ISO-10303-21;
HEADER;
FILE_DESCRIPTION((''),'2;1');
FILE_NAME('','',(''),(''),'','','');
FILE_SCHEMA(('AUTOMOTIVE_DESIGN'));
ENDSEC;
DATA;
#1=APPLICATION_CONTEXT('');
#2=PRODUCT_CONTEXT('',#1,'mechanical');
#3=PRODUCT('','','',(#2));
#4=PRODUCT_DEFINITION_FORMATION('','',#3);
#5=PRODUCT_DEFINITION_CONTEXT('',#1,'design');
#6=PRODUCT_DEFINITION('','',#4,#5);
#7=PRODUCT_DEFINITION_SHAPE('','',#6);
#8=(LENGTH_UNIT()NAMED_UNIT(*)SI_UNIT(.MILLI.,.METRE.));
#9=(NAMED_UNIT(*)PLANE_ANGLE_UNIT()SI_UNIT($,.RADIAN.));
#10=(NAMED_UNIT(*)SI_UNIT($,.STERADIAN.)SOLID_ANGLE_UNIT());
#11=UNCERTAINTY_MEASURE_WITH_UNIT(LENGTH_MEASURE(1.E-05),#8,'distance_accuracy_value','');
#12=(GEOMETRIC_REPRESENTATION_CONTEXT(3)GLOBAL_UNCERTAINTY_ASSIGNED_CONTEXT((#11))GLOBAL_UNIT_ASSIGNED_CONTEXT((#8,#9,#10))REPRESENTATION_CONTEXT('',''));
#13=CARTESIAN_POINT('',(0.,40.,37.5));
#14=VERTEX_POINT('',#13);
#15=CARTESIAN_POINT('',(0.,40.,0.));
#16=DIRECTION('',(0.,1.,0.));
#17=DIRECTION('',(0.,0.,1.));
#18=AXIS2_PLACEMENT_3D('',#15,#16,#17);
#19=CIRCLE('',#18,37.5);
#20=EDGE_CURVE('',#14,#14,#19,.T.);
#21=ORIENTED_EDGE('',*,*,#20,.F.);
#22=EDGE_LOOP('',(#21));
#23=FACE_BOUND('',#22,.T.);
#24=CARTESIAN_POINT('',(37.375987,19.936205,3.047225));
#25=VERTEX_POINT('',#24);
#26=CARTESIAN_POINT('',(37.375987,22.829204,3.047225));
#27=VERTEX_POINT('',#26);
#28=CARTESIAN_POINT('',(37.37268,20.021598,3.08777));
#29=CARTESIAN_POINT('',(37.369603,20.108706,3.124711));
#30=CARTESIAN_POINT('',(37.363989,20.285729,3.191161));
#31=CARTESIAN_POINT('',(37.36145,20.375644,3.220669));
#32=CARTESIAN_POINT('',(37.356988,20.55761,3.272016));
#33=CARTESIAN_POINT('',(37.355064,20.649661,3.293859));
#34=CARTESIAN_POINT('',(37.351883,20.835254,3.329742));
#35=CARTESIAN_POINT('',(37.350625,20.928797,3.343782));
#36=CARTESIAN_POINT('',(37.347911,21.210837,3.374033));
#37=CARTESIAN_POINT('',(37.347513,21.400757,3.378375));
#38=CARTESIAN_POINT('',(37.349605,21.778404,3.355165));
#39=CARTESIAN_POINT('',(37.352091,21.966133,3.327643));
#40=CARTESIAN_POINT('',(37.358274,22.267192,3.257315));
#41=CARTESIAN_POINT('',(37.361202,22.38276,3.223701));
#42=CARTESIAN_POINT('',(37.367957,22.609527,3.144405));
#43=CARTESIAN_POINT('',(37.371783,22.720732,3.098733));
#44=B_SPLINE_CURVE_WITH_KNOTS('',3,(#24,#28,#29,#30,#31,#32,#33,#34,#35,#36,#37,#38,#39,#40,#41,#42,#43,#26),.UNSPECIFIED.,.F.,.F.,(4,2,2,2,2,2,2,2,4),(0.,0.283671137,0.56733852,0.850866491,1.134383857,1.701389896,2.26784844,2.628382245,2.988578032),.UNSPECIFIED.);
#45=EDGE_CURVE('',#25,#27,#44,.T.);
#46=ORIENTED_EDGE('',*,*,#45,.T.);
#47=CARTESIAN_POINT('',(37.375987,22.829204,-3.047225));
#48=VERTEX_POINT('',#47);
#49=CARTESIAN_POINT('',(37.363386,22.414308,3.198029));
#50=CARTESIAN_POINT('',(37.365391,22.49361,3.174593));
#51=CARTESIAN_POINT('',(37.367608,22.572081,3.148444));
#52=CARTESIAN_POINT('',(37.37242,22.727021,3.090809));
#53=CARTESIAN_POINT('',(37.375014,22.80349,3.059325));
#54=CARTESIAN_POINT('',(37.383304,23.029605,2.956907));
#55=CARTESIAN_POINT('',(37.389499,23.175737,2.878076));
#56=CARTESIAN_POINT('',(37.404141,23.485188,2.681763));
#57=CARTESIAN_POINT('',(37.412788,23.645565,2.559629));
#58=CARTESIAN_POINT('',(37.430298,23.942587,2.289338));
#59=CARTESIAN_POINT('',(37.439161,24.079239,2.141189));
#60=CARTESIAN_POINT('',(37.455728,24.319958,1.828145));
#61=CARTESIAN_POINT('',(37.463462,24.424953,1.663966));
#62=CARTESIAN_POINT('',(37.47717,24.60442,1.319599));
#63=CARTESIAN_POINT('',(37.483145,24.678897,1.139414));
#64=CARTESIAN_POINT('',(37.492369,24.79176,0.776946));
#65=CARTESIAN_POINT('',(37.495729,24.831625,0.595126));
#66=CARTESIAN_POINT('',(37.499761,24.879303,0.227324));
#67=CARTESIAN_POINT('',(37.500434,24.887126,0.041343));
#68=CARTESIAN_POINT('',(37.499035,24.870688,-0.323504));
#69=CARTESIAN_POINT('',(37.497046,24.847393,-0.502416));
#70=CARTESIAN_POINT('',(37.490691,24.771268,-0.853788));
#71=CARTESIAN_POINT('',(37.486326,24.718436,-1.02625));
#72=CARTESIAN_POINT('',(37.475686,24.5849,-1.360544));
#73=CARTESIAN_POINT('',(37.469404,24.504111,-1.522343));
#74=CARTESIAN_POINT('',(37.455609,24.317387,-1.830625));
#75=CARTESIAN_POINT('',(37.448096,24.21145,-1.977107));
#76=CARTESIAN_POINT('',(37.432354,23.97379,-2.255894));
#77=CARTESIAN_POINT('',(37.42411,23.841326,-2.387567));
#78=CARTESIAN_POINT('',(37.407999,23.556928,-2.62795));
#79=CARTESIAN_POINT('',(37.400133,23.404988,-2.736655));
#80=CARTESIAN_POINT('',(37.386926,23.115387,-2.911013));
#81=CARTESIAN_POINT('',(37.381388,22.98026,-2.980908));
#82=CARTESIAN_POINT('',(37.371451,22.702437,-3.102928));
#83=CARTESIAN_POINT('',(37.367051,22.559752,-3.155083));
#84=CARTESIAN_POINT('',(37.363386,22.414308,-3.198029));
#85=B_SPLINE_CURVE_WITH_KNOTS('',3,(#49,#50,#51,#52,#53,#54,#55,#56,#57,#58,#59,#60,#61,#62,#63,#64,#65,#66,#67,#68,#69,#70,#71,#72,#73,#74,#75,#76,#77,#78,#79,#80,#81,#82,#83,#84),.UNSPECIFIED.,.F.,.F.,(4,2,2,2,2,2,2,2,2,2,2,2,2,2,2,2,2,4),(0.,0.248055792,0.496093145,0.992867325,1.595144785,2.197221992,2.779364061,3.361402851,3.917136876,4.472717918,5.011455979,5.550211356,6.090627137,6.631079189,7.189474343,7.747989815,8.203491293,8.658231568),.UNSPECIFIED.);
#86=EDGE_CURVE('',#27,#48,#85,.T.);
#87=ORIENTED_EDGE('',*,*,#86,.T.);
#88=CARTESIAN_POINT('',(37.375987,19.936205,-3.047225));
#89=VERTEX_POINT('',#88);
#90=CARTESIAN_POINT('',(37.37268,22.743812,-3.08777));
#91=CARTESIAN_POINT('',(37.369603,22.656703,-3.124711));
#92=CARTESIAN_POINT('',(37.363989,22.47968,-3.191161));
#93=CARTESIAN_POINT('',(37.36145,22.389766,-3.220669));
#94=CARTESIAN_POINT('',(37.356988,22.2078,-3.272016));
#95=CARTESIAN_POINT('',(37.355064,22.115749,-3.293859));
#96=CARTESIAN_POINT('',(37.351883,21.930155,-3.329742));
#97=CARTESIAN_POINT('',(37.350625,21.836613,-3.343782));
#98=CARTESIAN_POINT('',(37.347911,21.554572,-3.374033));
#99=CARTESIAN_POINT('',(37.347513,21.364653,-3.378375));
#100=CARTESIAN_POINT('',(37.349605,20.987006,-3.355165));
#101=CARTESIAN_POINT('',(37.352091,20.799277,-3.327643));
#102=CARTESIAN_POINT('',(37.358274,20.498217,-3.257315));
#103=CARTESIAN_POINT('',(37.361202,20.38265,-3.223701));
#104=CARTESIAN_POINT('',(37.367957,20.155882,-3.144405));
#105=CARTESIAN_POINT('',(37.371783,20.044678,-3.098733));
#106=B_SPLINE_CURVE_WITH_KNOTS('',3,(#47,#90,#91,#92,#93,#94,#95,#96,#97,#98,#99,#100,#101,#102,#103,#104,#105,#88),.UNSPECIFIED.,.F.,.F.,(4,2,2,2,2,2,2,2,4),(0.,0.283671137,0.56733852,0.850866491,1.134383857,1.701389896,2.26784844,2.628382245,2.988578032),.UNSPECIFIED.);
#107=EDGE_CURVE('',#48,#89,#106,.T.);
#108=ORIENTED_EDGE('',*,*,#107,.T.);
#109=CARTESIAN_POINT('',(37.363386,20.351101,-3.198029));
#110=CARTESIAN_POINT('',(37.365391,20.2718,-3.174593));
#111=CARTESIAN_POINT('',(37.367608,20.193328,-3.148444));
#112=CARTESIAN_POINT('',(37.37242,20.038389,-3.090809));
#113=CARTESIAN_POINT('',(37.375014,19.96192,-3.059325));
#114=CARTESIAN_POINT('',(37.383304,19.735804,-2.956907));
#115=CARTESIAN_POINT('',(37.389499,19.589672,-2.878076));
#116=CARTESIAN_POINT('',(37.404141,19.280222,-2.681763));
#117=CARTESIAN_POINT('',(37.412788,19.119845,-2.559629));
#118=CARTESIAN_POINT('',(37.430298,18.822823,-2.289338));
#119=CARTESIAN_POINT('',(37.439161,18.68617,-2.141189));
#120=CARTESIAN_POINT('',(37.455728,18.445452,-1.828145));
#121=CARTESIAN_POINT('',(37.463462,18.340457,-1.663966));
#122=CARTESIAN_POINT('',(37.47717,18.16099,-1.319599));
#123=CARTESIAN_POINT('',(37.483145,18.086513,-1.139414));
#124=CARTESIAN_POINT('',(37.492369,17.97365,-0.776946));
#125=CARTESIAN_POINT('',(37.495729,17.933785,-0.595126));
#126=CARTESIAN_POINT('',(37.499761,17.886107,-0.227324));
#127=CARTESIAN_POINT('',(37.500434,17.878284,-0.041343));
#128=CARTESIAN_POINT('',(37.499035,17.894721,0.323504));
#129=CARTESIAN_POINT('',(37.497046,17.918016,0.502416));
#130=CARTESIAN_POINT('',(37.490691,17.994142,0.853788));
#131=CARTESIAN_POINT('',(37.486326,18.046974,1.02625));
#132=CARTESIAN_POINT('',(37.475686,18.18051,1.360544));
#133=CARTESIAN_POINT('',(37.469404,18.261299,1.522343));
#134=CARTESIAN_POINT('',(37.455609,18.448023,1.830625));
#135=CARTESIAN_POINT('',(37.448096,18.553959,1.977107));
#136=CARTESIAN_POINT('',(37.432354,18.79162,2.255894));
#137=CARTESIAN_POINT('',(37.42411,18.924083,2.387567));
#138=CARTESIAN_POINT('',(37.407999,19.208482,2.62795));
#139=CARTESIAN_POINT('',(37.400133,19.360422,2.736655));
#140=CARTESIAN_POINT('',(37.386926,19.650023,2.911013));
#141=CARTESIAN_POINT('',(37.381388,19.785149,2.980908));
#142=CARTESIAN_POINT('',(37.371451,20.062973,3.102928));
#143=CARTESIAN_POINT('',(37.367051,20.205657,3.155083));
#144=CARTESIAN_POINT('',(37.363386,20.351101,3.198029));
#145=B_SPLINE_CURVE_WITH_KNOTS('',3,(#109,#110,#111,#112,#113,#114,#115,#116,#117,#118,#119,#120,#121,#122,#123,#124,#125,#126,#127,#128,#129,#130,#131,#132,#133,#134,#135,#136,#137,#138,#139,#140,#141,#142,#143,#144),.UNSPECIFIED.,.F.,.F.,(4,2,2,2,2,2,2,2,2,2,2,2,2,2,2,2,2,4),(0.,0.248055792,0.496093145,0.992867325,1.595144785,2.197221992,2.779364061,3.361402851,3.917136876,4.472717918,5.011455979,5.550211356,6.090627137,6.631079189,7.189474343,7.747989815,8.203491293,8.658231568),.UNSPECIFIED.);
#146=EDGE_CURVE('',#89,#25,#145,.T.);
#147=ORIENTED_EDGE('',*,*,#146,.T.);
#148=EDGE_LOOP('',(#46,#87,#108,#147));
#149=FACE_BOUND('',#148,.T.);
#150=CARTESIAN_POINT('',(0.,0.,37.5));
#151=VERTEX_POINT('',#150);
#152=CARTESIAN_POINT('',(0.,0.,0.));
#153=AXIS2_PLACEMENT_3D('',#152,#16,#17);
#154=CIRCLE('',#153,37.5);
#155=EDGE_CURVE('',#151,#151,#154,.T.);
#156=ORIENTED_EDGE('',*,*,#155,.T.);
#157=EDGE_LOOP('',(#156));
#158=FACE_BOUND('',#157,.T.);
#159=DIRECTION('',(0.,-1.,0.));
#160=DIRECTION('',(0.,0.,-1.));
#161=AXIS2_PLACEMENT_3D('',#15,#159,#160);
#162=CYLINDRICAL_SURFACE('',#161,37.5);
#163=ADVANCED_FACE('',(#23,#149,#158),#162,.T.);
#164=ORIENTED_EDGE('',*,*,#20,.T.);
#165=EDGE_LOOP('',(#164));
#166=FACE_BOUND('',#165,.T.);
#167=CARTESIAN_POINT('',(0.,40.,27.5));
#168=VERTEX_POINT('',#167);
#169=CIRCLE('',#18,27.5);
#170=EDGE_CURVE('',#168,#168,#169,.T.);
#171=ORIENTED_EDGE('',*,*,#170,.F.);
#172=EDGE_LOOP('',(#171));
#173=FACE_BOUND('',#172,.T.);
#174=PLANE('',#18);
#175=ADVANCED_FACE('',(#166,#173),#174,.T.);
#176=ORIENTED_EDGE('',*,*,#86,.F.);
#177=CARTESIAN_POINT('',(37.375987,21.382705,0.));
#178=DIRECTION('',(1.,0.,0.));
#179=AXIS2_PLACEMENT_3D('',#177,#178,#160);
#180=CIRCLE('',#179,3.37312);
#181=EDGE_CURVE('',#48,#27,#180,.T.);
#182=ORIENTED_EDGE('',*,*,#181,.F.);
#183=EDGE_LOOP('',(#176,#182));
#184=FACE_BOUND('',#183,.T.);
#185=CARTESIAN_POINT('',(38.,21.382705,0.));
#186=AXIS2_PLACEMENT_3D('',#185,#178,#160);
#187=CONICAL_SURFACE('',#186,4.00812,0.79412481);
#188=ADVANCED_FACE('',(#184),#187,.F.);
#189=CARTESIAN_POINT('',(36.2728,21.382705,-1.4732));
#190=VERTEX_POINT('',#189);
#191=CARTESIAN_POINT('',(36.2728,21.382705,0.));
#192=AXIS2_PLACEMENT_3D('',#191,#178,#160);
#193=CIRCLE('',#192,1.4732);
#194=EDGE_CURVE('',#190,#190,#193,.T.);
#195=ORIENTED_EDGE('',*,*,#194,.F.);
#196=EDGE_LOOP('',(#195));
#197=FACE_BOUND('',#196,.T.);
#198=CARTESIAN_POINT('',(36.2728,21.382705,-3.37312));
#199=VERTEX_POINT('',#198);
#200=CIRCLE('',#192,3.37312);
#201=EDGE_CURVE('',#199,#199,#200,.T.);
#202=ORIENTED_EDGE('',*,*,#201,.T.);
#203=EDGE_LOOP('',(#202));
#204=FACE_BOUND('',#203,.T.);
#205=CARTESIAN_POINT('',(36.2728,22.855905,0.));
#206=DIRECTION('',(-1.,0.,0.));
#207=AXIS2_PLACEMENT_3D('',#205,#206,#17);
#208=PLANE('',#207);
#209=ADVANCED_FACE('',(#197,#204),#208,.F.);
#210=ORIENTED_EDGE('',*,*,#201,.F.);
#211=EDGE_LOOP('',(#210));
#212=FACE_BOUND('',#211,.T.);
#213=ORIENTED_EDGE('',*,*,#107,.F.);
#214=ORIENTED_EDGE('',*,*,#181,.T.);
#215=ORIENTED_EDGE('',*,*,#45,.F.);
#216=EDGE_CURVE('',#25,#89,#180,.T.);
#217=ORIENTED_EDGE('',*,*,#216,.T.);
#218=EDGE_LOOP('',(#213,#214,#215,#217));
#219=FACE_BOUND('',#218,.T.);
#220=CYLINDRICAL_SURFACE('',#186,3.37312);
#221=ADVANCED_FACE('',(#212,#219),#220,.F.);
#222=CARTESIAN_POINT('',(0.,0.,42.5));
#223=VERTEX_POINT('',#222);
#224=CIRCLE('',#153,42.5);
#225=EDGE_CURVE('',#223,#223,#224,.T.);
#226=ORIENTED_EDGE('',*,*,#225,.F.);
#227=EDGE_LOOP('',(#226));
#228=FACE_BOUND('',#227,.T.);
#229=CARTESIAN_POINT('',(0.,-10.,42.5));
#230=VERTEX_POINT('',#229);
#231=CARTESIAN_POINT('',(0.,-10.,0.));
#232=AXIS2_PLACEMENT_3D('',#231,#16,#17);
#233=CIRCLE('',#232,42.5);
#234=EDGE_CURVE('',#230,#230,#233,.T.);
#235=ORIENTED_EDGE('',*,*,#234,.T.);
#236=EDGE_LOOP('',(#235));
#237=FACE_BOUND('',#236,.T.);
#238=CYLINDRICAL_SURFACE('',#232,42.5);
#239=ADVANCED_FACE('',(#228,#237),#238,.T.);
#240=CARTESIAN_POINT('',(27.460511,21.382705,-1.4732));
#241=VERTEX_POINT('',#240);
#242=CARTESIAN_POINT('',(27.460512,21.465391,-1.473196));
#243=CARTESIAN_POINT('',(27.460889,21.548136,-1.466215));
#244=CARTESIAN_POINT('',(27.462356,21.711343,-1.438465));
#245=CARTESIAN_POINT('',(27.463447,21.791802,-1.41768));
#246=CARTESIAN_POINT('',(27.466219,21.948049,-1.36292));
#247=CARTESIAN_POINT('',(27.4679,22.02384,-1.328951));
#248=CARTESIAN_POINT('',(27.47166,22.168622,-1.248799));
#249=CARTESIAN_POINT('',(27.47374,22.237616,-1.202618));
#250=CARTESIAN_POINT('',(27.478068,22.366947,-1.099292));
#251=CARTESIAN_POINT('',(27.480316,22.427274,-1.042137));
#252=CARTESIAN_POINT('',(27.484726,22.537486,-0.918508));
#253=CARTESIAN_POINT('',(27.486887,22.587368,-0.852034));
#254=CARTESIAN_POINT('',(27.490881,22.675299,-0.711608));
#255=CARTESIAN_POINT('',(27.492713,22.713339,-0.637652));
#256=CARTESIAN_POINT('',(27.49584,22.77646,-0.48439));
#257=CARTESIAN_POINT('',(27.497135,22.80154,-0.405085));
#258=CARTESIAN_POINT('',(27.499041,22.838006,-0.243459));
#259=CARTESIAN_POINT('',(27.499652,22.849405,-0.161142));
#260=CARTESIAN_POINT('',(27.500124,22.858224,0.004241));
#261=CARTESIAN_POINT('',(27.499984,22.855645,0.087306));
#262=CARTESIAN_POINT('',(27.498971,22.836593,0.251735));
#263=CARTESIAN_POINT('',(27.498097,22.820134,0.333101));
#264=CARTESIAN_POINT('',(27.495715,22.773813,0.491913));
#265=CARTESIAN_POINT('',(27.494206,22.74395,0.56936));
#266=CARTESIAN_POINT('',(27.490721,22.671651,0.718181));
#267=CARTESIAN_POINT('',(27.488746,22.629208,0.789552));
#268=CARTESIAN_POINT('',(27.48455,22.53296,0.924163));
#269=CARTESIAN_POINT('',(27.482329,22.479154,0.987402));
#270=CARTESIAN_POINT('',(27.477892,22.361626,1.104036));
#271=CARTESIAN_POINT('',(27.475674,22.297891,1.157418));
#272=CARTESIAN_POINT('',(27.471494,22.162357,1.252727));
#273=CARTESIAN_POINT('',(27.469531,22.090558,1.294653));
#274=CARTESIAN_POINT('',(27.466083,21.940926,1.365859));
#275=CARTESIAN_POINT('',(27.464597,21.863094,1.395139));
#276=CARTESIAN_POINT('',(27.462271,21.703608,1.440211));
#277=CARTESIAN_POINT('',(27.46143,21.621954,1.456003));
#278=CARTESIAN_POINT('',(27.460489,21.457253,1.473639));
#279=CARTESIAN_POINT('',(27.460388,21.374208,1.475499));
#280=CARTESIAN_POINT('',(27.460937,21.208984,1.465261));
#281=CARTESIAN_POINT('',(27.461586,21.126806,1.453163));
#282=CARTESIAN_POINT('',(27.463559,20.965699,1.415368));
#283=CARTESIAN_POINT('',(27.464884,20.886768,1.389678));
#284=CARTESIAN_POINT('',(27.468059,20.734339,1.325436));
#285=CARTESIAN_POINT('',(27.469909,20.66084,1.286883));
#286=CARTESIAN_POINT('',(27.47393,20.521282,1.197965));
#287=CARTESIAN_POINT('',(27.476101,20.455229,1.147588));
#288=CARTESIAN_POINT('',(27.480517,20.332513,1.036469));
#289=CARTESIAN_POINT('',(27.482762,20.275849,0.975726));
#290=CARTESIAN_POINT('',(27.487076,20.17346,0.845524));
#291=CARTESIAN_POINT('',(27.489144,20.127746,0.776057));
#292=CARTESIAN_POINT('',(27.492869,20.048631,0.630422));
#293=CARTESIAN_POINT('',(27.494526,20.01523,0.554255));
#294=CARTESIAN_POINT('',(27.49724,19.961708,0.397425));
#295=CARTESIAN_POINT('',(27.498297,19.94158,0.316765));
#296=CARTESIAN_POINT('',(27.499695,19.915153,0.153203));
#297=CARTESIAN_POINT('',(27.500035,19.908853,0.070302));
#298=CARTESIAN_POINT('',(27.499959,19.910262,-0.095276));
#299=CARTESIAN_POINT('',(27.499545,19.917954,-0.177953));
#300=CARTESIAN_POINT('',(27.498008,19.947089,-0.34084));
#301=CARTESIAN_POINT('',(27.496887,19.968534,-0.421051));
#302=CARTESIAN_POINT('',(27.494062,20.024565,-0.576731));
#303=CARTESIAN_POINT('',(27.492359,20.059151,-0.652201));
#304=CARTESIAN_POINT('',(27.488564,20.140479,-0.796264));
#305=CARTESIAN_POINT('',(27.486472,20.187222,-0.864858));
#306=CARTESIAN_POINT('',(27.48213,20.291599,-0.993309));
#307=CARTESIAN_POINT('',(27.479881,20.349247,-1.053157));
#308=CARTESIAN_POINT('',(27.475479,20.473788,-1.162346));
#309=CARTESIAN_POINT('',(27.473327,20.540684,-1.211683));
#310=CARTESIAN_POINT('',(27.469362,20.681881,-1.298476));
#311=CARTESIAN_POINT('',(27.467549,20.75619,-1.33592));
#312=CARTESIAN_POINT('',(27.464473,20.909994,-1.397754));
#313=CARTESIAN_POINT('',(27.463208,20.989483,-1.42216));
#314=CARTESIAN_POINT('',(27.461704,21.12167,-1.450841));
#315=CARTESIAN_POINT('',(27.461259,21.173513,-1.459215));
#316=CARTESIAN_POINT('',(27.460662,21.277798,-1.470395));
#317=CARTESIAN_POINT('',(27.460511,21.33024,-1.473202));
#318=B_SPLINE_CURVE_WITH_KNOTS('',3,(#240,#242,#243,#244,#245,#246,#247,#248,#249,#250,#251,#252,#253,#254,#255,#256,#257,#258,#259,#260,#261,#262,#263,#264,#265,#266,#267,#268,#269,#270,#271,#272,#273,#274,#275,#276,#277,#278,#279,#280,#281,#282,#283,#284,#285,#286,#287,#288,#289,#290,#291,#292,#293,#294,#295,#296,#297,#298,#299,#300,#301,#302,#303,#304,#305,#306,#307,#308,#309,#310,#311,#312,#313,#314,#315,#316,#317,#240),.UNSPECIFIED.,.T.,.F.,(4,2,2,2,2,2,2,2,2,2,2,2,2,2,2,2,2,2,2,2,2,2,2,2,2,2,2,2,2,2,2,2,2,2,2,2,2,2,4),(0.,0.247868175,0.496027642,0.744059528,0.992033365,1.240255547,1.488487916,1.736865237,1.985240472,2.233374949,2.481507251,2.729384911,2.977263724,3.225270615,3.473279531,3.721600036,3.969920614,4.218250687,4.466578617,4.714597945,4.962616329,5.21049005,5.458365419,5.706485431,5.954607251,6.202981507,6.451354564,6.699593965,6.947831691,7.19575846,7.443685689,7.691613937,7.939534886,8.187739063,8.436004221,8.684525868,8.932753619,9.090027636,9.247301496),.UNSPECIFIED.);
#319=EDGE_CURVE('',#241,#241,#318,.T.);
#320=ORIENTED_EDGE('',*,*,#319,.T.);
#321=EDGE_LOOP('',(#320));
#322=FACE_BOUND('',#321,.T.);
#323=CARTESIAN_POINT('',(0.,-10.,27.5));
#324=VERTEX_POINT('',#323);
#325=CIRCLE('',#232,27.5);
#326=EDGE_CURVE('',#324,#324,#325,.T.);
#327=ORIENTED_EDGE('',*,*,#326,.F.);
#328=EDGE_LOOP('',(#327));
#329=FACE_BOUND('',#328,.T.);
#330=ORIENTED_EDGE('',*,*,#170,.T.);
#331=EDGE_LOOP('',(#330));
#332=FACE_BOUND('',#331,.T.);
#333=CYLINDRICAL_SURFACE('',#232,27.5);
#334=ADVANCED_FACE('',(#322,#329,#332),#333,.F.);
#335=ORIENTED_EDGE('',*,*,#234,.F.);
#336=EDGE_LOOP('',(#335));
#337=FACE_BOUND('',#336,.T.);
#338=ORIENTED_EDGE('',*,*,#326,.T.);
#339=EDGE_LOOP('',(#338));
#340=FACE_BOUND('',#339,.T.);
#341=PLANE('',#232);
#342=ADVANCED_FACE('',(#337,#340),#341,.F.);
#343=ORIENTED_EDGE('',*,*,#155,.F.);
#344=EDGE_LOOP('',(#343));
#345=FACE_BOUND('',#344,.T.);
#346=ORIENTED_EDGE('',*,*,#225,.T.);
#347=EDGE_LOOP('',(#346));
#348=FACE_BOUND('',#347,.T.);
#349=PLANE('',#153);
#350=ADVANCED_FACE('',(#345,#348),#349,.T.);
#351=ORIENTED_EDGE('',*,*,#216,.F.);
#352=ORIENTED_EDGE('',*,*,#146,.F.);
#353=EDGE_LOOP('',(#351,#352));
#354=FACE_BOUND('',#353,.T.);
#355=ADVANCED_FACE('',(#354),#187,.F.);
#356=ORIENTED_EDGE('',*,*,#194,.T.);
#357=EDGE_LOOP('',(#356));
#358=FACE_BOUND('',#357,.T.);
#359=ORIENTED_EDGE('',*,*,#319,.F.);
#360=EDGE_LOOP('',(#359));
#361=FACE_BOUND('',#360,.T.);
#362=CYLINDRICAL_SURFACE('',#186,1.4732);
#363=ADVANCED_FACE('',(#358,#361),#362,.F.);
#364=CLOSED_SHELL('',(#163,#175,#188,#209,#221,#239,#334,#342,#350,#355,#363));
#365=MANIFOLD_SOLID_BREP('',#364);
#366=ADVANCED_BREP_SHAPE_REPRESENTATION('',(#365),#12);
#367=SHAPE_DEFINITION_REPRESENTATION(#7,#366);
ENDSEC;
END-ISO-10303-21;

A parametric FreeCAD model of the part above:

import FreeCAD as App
import Part
import Sketcher

V = App.Vector
Q = App.Units.Quantity


def add_polygon(sketch, points):
    """Adds a closed chain of lines whose ends are joined by coincident constraints."""
    first, n = sketch.GeometryCount, len(points)
    for a, b in zip(points, points[1:] + points[:1]):
        sketch.addGeometry(Part.LineSegment(App.Vector(*a, 0), App.Vector(*b, 0)), False)
    for i in range(n):
        sketch.addConstraint(Sketcher.Constraint("Coincident", first + i, 2, first + (i + 1) % n, 1))

doc = App.newDocument("Part")
body = doc.addObject("PartDesign::Body", "Body")

sketch1 = body.newObject("Sketcher::SketchObject", "Sketch")
sketch1.AttachmentSupport = (doc.getObject("XZ_Plane"), [""])
sketch1.MapMode = "FlatFace"
sketch1.addGeometry(Part.Circle(V(0, 0, 0), V(0, 0, 1), 37.5), False)
sketch1.addConstraint([
    Sketcher.Constraint("Coincident", 0, 3, -1, 1),
    Sketcher.Constraint("Diameter", 0, Q("75 mm")),
])
pad1 = body.newObject("PartDesign::Pad", "Pad")
pad1.Profile = sketch1
pad1.Length = 40
pad1.Reversed = True

sketch2 = body.newObject("Sketcher::SketchObject", "Sketch001")
sketch2.AttachmentSupport = (doc.getObject("XZ_Plane"), [""])
sketch2.MapMode = "FlatFace"
sketch2.addGeometry(Part.Circle(V(0, 0, 0), V(0, 0, 1), 42.5), False)
sketch2.addConstraint([
    Sketcher.Constraint("Coincident", 0, 3, -1, 1),
    Sketcher.Constraint("Diameter", 0, Q("85 mm")),
])
pad2 = body.newObject("PartDesign::Pad", "Pad001")
pad2.Profile = sketch2
pad2.Length = 10

sketch3 = body.newObject("Sketcher::SketchObject", "Sketch002")
sketch3.AttachmentSupport = (doc.getObject("XZ_Plane"), [""])
sketch3.MapMode = "FlatFace"
sketch3.addGeometry(Part.Circle(V(0, 0, 0), V(0, 0, 1), 27.5), False)
sketch3.addConstraint([
    Sketcher.Constraint("Coincident", 0, 3, -1, 1),
    Sketcher.Constraint("Diameter", 0, Q("55 mm")),
])
pocket1 = body.newObject("PartDesign::Pocket", "Pocket")
pocket1.Profile = sketch3
pocket1.Type = "ThroughAll"
pocket1.Midplane = True

sketch4 = body.newObject("Sketcher::SketchObject", "Sketch003")
sketch4.AttachmentSupport = (doc.getObject("XZ_Plane"), [""])
sketch4.MapMode = "FlatFace"
sketch4.AttachmentOffset = App.Placement(V(0, 0, -21.382705), App.Rotation())
add_polygon(sketch4, [(19.114812, 0), (38, 0), (38, -4.00812), (37.375987, -3.37312), (36.2728, -3.37312), (36.2728, -1.4732), (20, -1.4732)])
sketch4.addConstraint([
    Sketcher.Constraint("Horizontal", 0),
    Sketcher.Constraint("Vertical", 1),
    Sketcher.Constraint("Horizontal", 3),
    Sketcher.Constraint("Vertical", 4),
    Sketcher.Constraint("Horizontal", 5),
    Sketcher.Constraint("PointOnObject", 0, 2, -1),
    Sketcher.Constraint("Angle", 6, Q("121 deg")),
    Sketcher.Constraint("DistanceX", -1, 1, 0, 2, Q("38 mm")),
    Sketcher.Constraint("DistanceX", -1, 1, 5, 2, Q("20 mm")),
    Sketcher.Constraint("Angle", 2, Q("134.5 deg")),
    Sketcher.Constraint("DistanceX", 5, 2, 5, 1, Q("16.2728 mm")),
    Sketcher.Constraint("DistanceY", 1, 2, 2, 2, Q("0.635 mm")),
    Sketcher.Constraint("DistanceY", 1, 2, 1, 1, Q("4.00812 mm")),
    Sketcher.Constraint("DistanceY", 4, 1, 4, 2, Q("1.89992 mm")),
])
groove = body.newObject("PartDesign::Groove", "Groove")
groove.Profile = sketch4
groove.ReferenceAxis = (sketch4, ["H_Axis"])
groove.Angle = 360

doc.recompute()
